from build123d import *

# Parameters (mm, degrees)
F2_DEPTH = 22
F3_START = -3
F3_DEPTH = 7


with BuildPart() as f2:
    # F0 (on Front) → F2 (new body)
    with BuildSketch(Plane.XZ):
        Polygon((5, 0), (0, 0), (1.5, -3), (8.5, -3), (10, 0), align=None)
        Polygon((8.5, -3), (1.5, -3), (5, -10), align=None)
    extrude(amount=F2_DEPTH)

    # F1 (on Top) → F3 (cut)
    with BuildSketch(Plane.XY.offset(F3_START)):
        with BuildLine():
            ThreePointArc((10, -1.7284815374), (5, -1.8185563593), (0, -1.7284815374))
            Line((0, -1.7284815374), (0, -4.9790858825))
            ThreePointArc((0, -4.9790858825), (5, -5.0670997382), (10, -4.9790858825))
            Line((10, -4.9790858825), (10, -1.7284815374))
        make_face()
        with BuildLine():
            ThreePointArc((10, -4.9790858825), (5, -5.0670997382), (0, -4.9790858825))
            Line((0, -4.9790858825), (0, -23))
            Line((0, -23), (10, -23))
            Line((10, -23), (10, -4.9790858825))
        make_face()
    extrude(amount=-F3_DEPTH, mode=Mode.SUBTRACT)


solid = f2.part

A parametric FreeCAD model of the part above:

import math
import FreeCAD as App
import Part
import Sketcher
from FreeCAD import Vector

doc = App.newDocument("Part")
params = doc.addObject("Spreadsheet::Sheet", "Params")
for row, (alias, value) in enumerate([
    ("sketch1_width", "10 mm"),
    ("pad1_length", "22 mm"),
    ("sketch2_width", "10 mm"),
    ("pocket1_length", "7 mm"),
], start=1):
    params.set(f"A{row}", alias)
    params.set(f"B{row}", "=" + value)
    params.setAlias(f"B{row}", alias)

body = doc.addObject("PartDesign::Body", "Body")

# Sketch on XZ plane
sketch1 = doc.addObject("Sketcher::SketchObject", "Sketch")
body.addObject(sketch1)
sketch1.AttachmentSupport = (doc.XZ_Plane, [""])
sketch1.MapMode = "FlatFace"
sketch1.addGeometry(Part.LineSegment(Vector(0, 0, 0), Vector(5, -10, 0)), False)
sketch1.addGeometry(Part.LineSegment(Vector(5, -10, 0), Vector(10, 0, 0)), False)
sketch1.addGeometry(Part.LineSegment(Vector(10, 0, 0), Vector(0, 0, 0)), False)
sketch1.addConstraint(Sketcher.Constraint("Coincident", 0, 2, 1, 1))
sketch1.addConstraint(Sketcher.Constraint("Coincident", 1, 2, 2, 1))
sketch1.addConstraint(Sketcher.Constraint("Coincident", 2, 2, 0, 1))
sketch1.addConstraint(Sketcher.Constraint("Horizontal", 2))
sketch1.addConstraint(Sketcher.Constraint("Coincident", 2, 2, -1, 1))
sketch1.addConstraint(Sketcher.Constraint("Equal", 0, 1))
sketch1.addConstraint(Sketcher.Constraint("DistanceX", 2, 2, 2, 1, 10.0))
sketch1.addConstraint(Sketcher.Constraint("DistanceY", 0, 2, -1, 1, 10.0))
sketch1.setExpression("Constraints[6]", "Params.sketch1_width")
pad1 = doc.addObject("PartDesign::Pad", "Pad")
body.addObject(pad1)
pad1.Profile = sketch1
pad1.setExpression("Length", "Params.pad1_length")

# Sketch on XY plane
sketch2 = doc.addObject("Sketcher::SketchObject", "Sketch001")
body.addObject(sketch2)
sketch2.AttachmentSupport = (doc.XY_Plane, [""])
sketch2.MapMode = "FlatFace"
sketch2.AttachmentOffset = App.Placement(Vector(0, 0, -3), App.Rotation())
sketch2.addGeometry(Part.ArcOfCircle(Part.Circle(Vector(5, 137, 0), Vector(0, 0, 1), 139), math.radians(-92.06), math.radians(-87.94)), False)
sketch2.addGeometry(Part.LineSegment(Vector(0, -2, 0), Vector(0, -23, 0)), False)
sketch2.addGeometry(Part.LineSegment(Vector(0, -23, 0), Vector(10, -23, 0)), False)
sketch2.addGeometry(Part.LineSegment(Vector(10, -23, 0), Vector(10, -2, 0)), False)
sketch2.addConstraint(Sketcher.Constraint("Coincident", 0, 1, 1, 1))
sketch2.addConstraint(Sketcher.Constraint("Coincident", 1, 2, 2, 1))
sketch2.addConstraint(Sketcher.Constraint("Coincident", 2, 2, 3, 1))
sketch2.addConstraint(Sketcher.Constraint("Coincident", 3, 2, 0, 2))
sketch2.addConstraint(Sketcher.Constraint("Vertical", 1))
sketch2.addConstraint(Sketcher.Constraint("Horizontal", 2))
sketch2.addConstraint(Sketcher.Constraint("Vertical", 3))
sketch2.addConstraint(Sketcher.Constraint("PointOnObject", 0, 1, -2))
sketch2.addConstraint(Sketcher.Constraint("Horizontal", 0, 1, 3, 2))
sketch2.addConstraint(Sketcher.Constraint("DistanceX", 2, 1, 2, 2, 10.0))
sketch2.addConstraint(Sketcher.Constraint("DistanceY", -1, 1, 0, 3, 137.0))
sketch2.addConstraint(Sketcher.Constraint("DistanceY", 1, 2, -1, 1, 23.0))
sketch2.addConstraint(Sketcher.Constraint("Radius", 0, 138.818556))
sketch2.setExpression("Constraints[9]", "Params.sketch2_width")
pocket1 = doc.addObject("PartDesign::Pocket", "Pocket")
body.addObject(pocket1)
pocket1.Profile = sketch2
pocket1.setExpression("Length", "Params.pocket1_length")

doc.recompute()
